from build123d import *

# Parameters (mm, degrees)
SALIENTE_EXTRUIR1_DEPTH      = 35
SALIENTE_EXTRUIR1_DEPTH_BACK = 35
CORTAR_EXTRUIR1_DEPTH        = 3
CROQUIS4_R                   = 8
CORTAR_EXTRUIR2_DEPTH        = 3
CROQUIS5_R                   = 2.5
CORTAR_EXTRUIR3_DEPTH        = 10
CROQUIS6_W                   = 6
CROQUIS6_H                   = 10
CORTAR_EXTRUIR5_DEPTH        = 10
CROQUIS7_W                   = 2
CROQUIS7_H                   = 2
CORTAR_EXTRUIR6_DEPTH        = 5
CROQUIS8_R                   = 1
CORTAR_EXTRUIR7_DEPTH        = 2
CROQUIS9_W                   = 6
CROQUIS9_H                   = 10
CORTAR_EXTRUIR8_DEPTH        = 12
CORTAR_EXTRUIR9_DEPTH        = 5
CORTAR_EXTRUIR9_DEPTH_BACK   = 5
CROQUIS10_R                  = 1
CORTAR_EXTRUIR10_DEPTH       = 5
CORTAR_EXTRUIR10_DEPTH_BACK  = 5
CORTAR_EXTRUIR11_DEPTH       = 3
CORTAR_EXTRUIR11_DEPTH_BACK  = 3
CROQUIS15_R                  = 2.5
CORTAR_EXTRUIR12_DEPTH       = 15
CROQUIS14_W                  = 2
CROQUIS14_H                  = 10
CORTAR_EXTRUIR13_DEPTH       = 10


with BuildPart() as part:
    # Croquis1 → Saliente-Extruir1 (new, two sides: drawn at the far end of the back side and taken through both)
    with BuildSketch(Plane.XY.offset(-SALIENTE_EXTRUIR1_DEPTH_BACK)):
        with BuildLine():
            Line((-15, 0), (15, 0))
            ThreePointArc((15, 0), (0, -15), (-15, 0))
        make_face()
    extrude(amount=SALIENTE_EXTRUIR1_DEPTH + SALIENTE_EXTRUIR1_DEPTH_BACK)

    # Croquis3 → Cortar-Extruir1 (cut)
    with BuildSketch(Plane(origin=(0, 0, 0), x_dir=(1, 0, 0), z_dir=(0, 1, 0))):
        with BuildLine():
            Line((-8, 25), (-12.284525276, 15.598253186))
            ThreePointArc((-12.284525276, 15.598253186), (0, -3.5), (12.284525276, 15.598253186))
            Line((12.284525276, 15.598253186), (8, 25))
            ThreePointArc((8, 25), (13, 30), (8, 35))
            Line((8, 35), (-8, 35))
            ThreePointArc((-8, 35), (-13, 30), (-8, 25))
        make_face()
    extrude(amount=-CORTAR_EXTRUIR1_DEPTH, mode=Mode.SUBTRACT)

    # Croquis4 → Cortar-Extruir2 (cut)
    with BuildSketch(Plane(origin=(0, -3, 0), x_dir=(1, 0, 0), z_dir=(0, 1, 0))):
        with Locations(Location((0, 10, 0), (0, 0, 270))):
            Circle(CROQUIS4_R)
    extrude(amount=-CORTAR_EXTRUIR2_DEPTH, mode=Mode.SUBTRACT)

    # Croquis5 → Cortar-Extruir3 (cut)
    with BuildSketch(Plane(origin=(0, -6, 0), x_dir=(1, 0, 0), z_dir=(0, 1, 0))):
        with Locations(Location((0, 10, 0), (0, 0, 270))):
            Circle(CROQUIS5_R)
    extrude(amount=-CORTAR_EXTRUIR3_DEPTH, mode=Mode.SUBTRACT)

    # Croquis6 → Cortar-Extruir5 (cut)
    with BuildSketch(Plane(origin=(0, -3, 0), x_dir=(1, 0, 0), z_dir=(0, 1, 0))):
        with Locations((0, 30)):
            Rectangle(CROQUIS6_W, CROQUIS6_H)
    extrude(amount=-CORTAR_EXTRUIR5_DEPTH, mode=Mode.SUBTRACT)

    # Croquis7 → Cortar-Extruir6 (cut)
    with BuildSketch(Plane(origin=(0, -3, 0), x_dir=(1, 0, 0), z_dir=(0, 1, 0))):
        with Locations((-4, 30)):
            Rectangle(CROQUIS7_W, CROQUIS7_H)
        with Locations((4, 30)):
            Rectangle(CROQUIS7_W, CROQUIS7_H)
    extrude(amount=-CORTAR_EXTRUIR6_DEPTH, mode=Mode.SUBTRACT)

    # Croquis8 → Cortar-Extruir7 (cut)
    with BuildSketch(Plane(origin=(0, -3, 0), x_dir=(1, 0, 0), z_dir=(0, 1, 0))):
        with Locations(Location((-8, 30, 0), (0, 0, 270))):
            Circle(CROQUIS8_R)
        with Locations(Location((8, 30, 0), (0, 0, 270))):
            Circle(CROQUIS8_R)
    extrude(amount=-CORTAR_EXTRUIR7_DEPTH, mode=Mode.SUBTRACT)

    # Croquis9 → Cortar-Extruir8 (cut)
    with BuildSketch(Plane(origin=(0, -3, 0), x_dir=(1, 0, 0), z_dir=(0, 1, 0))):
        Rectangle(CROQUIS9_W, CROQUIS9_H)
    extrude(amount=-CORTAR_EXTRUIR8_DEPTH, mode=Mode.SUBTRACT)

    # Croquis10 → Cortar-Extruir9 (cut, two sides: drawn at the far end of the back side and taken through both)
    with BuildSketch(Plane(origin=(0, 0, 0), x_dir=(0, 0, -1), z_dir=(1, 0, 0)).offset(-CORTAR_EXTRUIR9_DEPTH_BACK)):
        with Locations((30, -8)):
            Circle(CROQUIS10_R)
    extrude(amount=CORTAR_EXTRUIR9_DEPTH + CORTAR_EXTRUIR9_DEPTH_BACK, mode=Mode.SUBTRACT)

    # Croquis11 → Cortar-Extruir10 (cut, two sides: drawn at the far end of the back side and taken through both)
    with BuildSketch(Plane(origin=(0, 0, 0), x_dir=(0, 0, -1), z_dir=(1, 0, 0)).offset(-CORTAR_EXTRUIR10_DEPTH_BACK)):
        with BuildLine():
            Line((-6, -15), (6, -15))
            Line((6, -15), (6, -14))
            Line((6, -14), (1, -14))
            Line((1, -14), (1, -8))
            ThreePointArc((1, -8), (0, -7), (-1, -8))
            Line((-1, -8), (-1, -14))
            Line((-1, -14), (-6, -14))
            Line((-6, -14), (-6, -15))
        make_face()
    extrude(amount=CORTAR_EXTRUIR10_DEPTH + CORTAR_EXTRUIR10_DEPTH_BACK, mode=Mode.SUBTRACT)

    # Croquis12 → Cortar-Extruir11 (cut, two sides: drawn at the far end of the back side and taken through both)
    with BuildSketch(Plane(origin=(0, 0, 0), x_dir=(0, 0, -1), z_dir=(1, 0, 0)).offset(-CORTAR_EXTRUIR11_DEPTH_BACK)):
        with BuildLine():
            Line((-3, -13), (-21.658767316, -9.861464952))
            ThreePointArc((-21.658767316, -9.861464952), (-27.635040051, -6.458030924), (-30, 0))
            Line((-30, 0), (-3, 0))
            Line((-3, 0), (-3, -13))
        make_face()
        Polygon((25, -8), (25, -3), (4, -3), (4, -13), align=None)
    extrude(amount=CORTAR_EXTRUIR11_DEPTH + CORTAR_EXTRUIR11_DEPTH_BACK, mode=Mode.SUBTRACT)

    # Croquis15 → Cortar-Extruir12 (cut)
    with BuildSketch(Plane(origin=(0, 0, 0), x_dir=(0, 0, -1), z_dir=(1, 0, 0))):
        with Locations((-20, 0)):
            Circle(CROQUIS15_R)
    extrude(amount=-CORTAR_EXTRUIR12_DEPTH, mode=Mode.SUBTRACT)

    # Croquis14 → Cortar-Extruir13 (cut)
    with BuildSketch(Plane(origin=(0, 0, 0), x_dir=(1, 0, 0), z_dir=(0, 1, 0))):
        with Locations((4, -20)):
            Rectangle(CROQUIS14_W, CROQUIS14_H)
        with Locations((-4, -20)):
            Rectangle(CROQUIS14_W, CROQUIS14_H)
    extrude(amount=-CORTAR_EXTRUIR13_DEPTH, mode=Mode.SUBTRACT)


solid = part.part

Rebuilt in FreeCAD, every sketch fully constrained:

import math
import FreeCAD as App
import Part
import Sketcher

doc = App.newDocument("Part")
body = doc.addObject("PartDesign::Body", "Body")

sketch1 = body.newObject("Sketcher::SketchObject", "Sketch")
sketch1.AttachmentSupport = (doc.getObject("XY_Plane"), [""])
sketch1.MapMode = "FlatFace"
sketch1.addGeometry(Part.LineSegment(App.Vector(15, 0, 0), App.Vector(-15, 0, 0)), False)
sketch1.addGeometry(Part.ArcOfCircle(Part.Circle(App.Vector(0, 0, 0), App.Vector(0, 0, 1), 15), math.radians(180), math.radians(360)), False)
sketch1.addConstraint(Sketcher.Constraint("Coincident", 0, 1, 1, 2))
sketch1.addConstraint(Sketcher.Constraint("Coincident", 1, 1, 0, 2))
sketch1.addConstraint(Sketcher.Constraint("Horizontal", 0))
sketch1.addConstraint(Sketcher.Constraint("Coincident", 1, 3, -1, 1))
sketch1.addConstraint(Sketcher.Constraint("PointOnObject", 0, 1, -1))
sketch1.addConstraint(Sketcher.Constraint("Radius", 1, 15.0))
pad1 = body.newObject("PartDesign::Pad", "Pad")
pad1.Profile = sketch1
pad1.Type = "TwoLengths"
pad1.Length = 35
pad1.Length2 = 35

sketch2 = body.newObject("Sketcher::SketchObject", "Sketch001")
sketch2.AttachmentSupport = (doc.getObject("XZ_Plane"), [""])
sketch2.MapMode = "FlatFace"
sketch2.addGeometry(Part.LineSegment(App.Vector(-8, -25, 0), App.Vector(-12, -16, 0)), False)
sketch2.addGeometry(Part.ArcOfCircle(Part.Circle(App.Vector(0, -10, 0), App.Vector(0, 0, 1), 14), math.radians(-24), math.radians(204)), False)
sketch2.addGeometry(Part.LineSegment(App.Vector(12, -16, 0), App.Vector(8, -25, 0)), False)
sketch2.addGeometry(Part.ArcOfCircle(Part.Circle(App.Vector(8, -30, 0), App.Vector(0, 0, 1), 5), math.radians(-90), math.radians(90)), False)
sketch2.addGeometry(Part.LineSegment(App.Vector(8, -35, 0), App.Vector(-8, -35, 0)), False)
sketch2.addGeometry(Part.ArcOfCircle(Part.Circle(App.Vector(-8, -30, 0), App.Vector(0, 0, 1), 5), math.radians(90), math.radians(270)), False)
sketch2.addConstraint(Sketcher.Constraint("Tangent", 0, 2, 1, 2))
sketch2.addConstraint(Sketcher.Constraint("Tangent", 1, 1, 2, 1))
sketch2.addConstraint(Sketcher.Constraint("Coincident", 2, 2, 3, 2))
sketch2.addConstraint(Sketcher.Constraint("Tangent", 3, 1, 4, 1))
sketch2.addConstraint(Sketcher.Constraint("Tangent", 4, 2, 5, 2))
sketch2.addConstraint(Sketcher.Constraint("Coincident", 5, 1, 0, 1))
sketch2.addConstraint(Sketcher.Constraint("Horizontal", 4))
sketch2.addConstraint(Sketcher.Constraint("Equal", 3, 5))
sketch2.addConstraint(Sketcher.Constraint("Symmetric", 0, 2, 1, 1, -2))
sketch2.addConstraint(Sketcher.Constraint("Vertical", 3, 3, 2, 2))
sketch2.addConstraint(Sketcher.Constraint("Vertical", 4, 2, 5, 1))
sketch2.addConstraint(Sketcher.Constraint("Radius", 3, 5.0))
sketch2.addConstraint(Sketcher.Constraint("Radius", 1, 13.5))
sketch2.addConstraint(Sketcher.Constraint("DistanceX", 4, 2, 4, 1, 16.0))
sketch2.addConstraint(Sketcher.Constraint("DistanceY", 1, 3, -1, 1, 10.0))
sketch2.addConstraint(Sketcher.Constraint("DistanceY", 3, 3, -1, 1, 30.0))
pocket1 = body.newObject("PartDesign::Pocket", "Pocket")
pocket1.Profile = sketch2
pocket1.Length = 3
pocket1.Reversed = True

sketch3 = body.newObject("Sketcher::SketchObject", "Sketch002")
sketch3.AttachmentSupport = (doc.getObject("XZ_Plane"), [""])
sketch3.MapMode = "FlatFace"
sketch3.AttachmentOffset = App.Placement(App.Vector(0, 0, 3), App.Rotation())
sketch3.addGeometry(Part.Circle(App.Vector(0, -10, 0), App.Vector(0, 0, 1), 8), False)
sketch3.addConstraint(Sketcher.Constraint("PointOnObject", 0, 3, -2))
sketch3.addConstraint(Sketcher.Constraint("Diameter", 0, 16.0))
sketch3.addConstraint(Sketcher.Constraint("DistanceY", 0, 3, -1, 1, 10.0))
pocket2 = body.newObject("PartDesign::Pocket", "Pocket001")
pocket2.Profile = sketch3
pocket2.Length = 3
pocket2.Reversed = True

sketch4 = body.newObject("Sketcher::SketchObject", "Sketch003")
sketch4.AttachmentSupport = (doc.getObject("XZ_Plane"), [""])
sketch4.MapMode = "FlatFace"
sketch4.AttachmentOffset = App.Placement(App.Vector(0, 0, 6), App.Rotation())
sketch4.addGeometry(Part.Circle(App.Vector(0, -10, 0), App.Vector(0, 0, 1), 2.5), False)
sketch4.addConstraint(Sketcher.Constraint("PointOnObject", 0, 3, -2))
sketch4.addConstraint(Sketcher.Constraint("Diameter", 0, 5.0))
sketch4.addConstraint(Sketcher.Constraint("DistanceY", 0, 3, -1, 1, 10.0))
pocket3 = body.newObject("PartDesign::Pocket", "Pocket002")
pocket3.Profile = sketch4
pocket3.Length = 10
pocket3.Reversed = True

sketch5 = body.newObject("Sketcher::SketchObject", "Sketch004")
sketch5.AttachmentSupport = (doc.getObject("XZ_Plane"), [""])
sketch5.MapMode = "FlatFace"
sketch5.AttachmentOffset = App.Placement(App.Vector(0, 0, 3), App.Rotation())
sketch5.addGeometry(Part.LineSegment(App.Vector(-3, -35, 0), App.Vector(-3, -25, 0)), False)
sketch5.addGeometry(Part.LineSegment(App.Vector(-3, -25, 0), App.Vector(3, -25, 0)), False)
sketch5.addGeometry(Part.LineSegment(App.Vector(3, -25, 0), App.Vector(3, -35, 0)), False)
sketch5.addGeometry(Part.LineSegment(App.Vector(3, -35, 0), App.Vector(-3, -35, 0)), False)
sketch5.addConstraint(Sketcher.Constraint("Coincident", 0, 2, 1, 1))
sketch5.addConstraint(Sketcher.Constraint("Coincident", 1, 2, 2, 1))
sketch5.addConstraint(Sketcher.Constraint("Coincident", 2, 2, 3, 1))
sketch5.addConstraint(Sketcher.Constraint("Coincident", 3, 2, 0, 1))
sketch5.addConstraint(Sketcher.Constraint("Vertical", 0))
sketch5.addConstraint(Sketcher.Constraint("Horizontal", 1))
sketch5.addConstraint(Sketcher.Constraint("Vertical", 2))
sketch5.addConstraint(Sketcher.Constraint("Horizontal", 3))
sketch5.addConstraint(Sketcher.Constraint("DistanceX", 1, 1, 1, 2, 6.0))
sketch5.addConstraint(Sketcher.Constraint("DistanceY", 0, 1, 0, 2, 10.0))
sketch5.addConstraint(Sketcher.Constraint("DistanceX", 0, 2, -1, 1, 3.0))
sketch5.addConstraint(Sketcher.Constraint("DistanceY", 0, 2, -1, 1, 25.0))
pocket4 = body.newObject("PartDesign::Pocket", "Pocket003")
pocket4.Profile = sketch5
pocket4.Length = 10
pocket4.Reversed = True

sketch6 = body.newObject("Sketcher::SketchObject", "Sketch005")
sketch6.AttachmentSupport = (doc.getObject("XZ_Plane"), [""])
sketch6.MapMode = "FlatFace"
sketch6.AttachmentOffset = App.Placement(App.Vector(0, 0, 3), App.Rotation())
sketch6.addGeometry(Part.LineSegment(App.Vector(-5, -31, 0), App.Vector(-5, -29, 0)), False)
sketch6.addGeometry(Part.LineSegment(App.Vector(-5, -29, 0), App.Vector(-3, -29, 0)), False)
sketch6.addGeometry(Part.LineSegment(App.Vector(-3, -29, 0), App.Vector(-3, -31, 0)), False)
sketch6.addGeometry(Part.LineSegment(App.Vector(-3, -31, 0), App.Vector(-5, -31, 0)), False)
sketch6.addGeometry(Part.LineSegment(App.Vector(3, -31, 0), App.Vector(3, -29, 0)), False)
sketch6.addGeometry(Part.LineSegment(App.Vector(3, -29, 0), App.Vector(5, -29, 0)), False)
sketch6.addGeometry(Part.LineSegment(App.Vector(5, -29, 0), App.Vector(5, -31, 0)), False)
sketch6.addGeometry(Part.LineSegment(App.Vector(5, -31, 0), App.Vector(3, -31, 0)), False)
sketch6.addConstraint(Sketcher.Constraint("Coincident", 0, 2, 1, 1))
sketch6.addConstraint(Sketcher.Constraint("Coincident", 1, 2, 2, 1))
sketch6.addConstraint(Sketcher.Constraint("Coincident", 2, 2, 3, 1))
sketch6.addConstraint(Sketcher.Constraint("Coincident", 3, 2, 0, 1))
sketch6.addConstraint(Sketcher.Constraint("Coincident", 4, 2, 5, 1))
sketch6.addConstraint(Sketcher.Constraint("Coincident", 5, 2, 6, 1))
sketch6.addConstraint(Sketcher.Constraint("Coincident", 6, 2, 7, 1))
sketch6.addConstraint(Sketcher.Constraint("Coincident", 7, 2, 4, 1))
sketch6.addConstraint(Sketcher.Constraint("Vertical", 0))
sketch6.addConstraint(Sketcher.Constraint("Horizontal", 1))
sketch6.addConstraint(Sketcher.Constraint("Vertical", 2))
sketch6.addConstraint(Sketcher.Constraint("Horizontal", 3))
sketch6.addConstraint(Sketcher.Constraint("Vertical", 4))
sketch6.addConstraint(Sketcher.Constraint("Horizontal", 5))
sketch6.addConstraint(Sketcher.Constraint("Vertical", 6))
sketch6.addConstraint(Sketcher.Constraint("Horizontal", 7))
sketch6.addConstraint(Sketcher.Constraint("Symmetric", 1, 2, 4, 2, -2))
sketch6.addConstraint(Sketcher.Constraint("Symmetric", 3, 2, 6, 2, -2))
sketch6.addConstraint(Sketcher.Constraint("Equal", 7, 0))
sketch6.addConstraint(Sketcher.Constraint("DistanceX", 1, 1, 1, 2, 2.0))
sketch6.addConstraint(Sketcher.Constraint("DistanceX", 0, 2, -1, 1, 5.0))
sketch6.addConstraint(Sketcher.Constraint("DistanceY", 0, 2, -1, 1, 29.0))
pocket5 = body.newObject("PartDesign::Pocket", "Pocket004")
pocket5.Profile = sketch6
pocket5.Length = 5
pocket5.Reversed = True

sketch7 = body.newObject("Sketcher::SketchObject", "Sketch006")
sketch7.AttachmentSupport = (doc.getObject("XZ_Plane"), [""])
sketch7.MapMode = "FlatFace"
sketch7.AttachmentOffset = App.Placement(App.Vector(0, 0, 3), App.Rotation())
sketch7.addGeometry(Part.Circle(App.Vector(-8, -30, 0), App.Vector(0, 0, 1), 1), False)
sketch7.addGeometry(Part.Circle(App.Vector(8, -30, 0), App.Vector(0, 0, 1), 1), False)
sketch7.addConstraint(Sketcher.Constraint("Equal", 0, 1))
sketch7.addConstraint(Sketcher.Constraint("Symmetric", 0, 3, 1, 3, -2))
sketch7.addConstraint(Sketcher.Constraint("Diameter", 0, 2.0))
sketch7.addConstraint(Sketcher.Constraint("DistanceX", 0, 3, -1, 1, 8.0))
sketch7.addConstraint(Sketcher.Constraint("DistanceY", 0, 3, -1, 1, 30.0))
pocket6 = body.newObject("PartDesign::Pocket", "Pocket005")
pocket6.Profile = sketch7
pocket6.Length = 2
pocket6.Reversed = True

sketch8 = body.newObject("Sketcher::SketchObject", "Sketch007")
sketch8.AttachmentSupport = (doc.getObject("XZ_Plane"), [""])
sketch8.MapMode = "FlatFace"
sketch8.AttachmentOffset = App.Placement(App.Vector(0, 0, 3), App.Rotation())
sketch8.addGeometry(Part.LineSegment(App.Vector(-3, -5, 0), App.Vector(-3, 5, 0)), False)
sketch8.addGeometry(Part.LineSegment(App.Vector(-3, 5, 0), App.Vector(3, 5, 0)), False)
sketch8.addGeometry(Part.LineSegment(App.Vector(3, 5, 0), App.Vector(3, -5, 0)), False)
sketch8.addGeometry(Part.LineSegment(App.Vector(3, -5, 0), App.Vector(-3, -5, 0)), False)
sketch8.addConstraint(Sketcher.Constraint("Coincident", 0, 2, 1, 1))
sketch8.addConstraint(Sketcher.Constraint("Coincident", 1, 2, 2, 1))
sketch8.addConstraint(Sketcher.Constraint("Coincident", 2, 2, 3, 1))
sketch8.addConstraint(Sketcher.Constraint("Coincident", 3, 2, 0, 1))
sketch8.addConstraint(Sketcher.Constraint("Vertical", 0))
sketch8.addConstraint(Sketcher.Constraint("Horizontal", 1))
sketch8.addConstraint(Sketcher.Constraint("Vertical", 2))
sketch8.addConstraint(Sketcher.Constraint("Horizontal", 3))
sketch8.addConstraint(Sketcher.Constraint("Symmetric", 0, 2, 2, 2, -1, 1))
sketch8.addConstraint(Sketcher.Constraint("DistanceX", 1, 1, 1, 2, 6.0))
sketch8.addConstraint(Sketcher.Constraint("DistanceY", 0, 1, 0, 2, 10.0))
pocket7 = body.newObject("PartDesign::Pocket", "Pocket006")
pocket7.Profile = sketch8
pocket7.Length = 12
pocket7.Reversed = True

sketch9 = body.newObject("Sketcher::SketchObject", "Sketch008")
sketch9.AttachmentSupport = (doc.getObject("YZ_Plane"), [""])
sketch9.MapMode = "FlatFace"
sketch9.addGeometry(Part.Circle(App.Vector(-8, -30, 0), App.Vector(0, 0, 1), 1), False)
sketch9.addConstraint(Sketcher.Constraint("Diameter", 0, 2.0))
sketch9.addConstraint(Sketcher.Constraint("DistanceX", 0, 3, -1, 1, 8.0))
sketch9.addConstraint(Sketcher.Constraint("DistanceY", 0, 3, -1, 1, 30.0))
pocket8 = body.newObject("PartDesign::Pocket", "Pocket007")
pocket8.Profile = sketch9
pocket8.Type = "TwoLengths"
pocket8.Length = 5
pocket8.Length2 = 5
pocket8.Reversed = True

sketch10 = body.newObject("Sketcher::SketchObject", "Sketch009")
sketch10.AttachmentSupport = (doc.getObject("YZ_Plane"), [""])
sketch10.MapMode = "FlatFace"
sketch10.addGeometry(Part.LineSegment(App.Vector(-15, 6, 0), App.Vector(-15, -6, 0)), False)
sketch10.addGeometry(Part.LineSegment(App.Vector(-15, -6, 0), App.Vector(-14, -6, 0)), False)
sketch10.addGeometry(Part.LineSegment(App.Vector(-14, -6, 0), App.Vector(-14, -1, 0)), False)
sketch10.addGeometry(Part.LineSegment(App.Vector(-14, -1, 0), App.Vector(-8, -1, 0)), False)
sketch10.addGeometry(Part.ArcOfCircle(Part.Circle(App.Vector(-8, 0, 0), App.Vector(0, 0, 1), 1), math.radians(-90), math.radians(90)), False)
sketch10.addGeometry(Part.LineSegment(App.Vector(-8, 1, 0), App.Vector(-14, 1, 0)), False)
sketch10.addGeometry(Part.LineSegment(App.Vector(-14, 1, 0), App.Vector(-14, 6, 0)), False)
sketch10.addGeometry(Part.LineSegment(App.Vector(-14, 6, 0), App.Vector(-15, 6, 0)), False)
sketch10.addConstraint(Sketcher.Constraint("Coincident", 0, 2, 1, 1))
sketch10.addConstraint(Sketcher.Constraint("Coincident", 1, 2, 2, 1))
sketch10.addConstraint(Sketcher.Constraint("Coincident", 2, 2, 3, 1))
sketch10.addConstraint(Sketcher.Constraint("Tangent", 3, 2, 4, 1))
sketch10.addConstraint(Sketcher.Constraint("Tangent", 4, 2, 5, 1))
sketch10.addConstraint(Sketcher.Constraint("Coincident", 5, 2, 6, 1))
sketch10.addConstraint(Sketcher.Constraint("Coincident", 6, 2, 7, 1))
sketch10.addConstraint(Sketcher.Constraint("Coincident", 7, 2, 0, 1))
sketch10.addConstraint(Sketcher.Constraint("Vertical", 0))
sketch10.addConstraint(Sketcher.Constraint("Horizontal", 1))
sketch10.addConstraint(Sketcher.Constraint("Vertical", 2))
sketch10.addConstraint(Sketcher.Constraint("Horizontal", 3))
sketch10.addConstraint(Sketcher.Constraint("Horizontal", 5))
sketch10.addConstraint(Sketcher.Constraint("Vertical", 6))
sketch10.addConstraint(Sketcher.Constraint("Horizontal", 7))
sketch10.addConstraint(Sketcher.Constraint("Symmetric", 2, 2, 5, 2, -1))
sketch10.addConstraint(Sketcher.Constraint("Equal", 2, 6))
sketch10.addConstraint(Sketcher.Constraint("Radius", 4, 1.0))
sketch10.addConstraint(Sketcher.Constraint("DistanceX", 1, 1, 1, 2, 1.0))
sketch10.addConstraint(Sketcher.Constraint("DistanceX", 3, 1, 3, 2, 6.0))
sketch10.addConstraint(Sketcher.Constraint("DistanceY", 0, 2, 0, 1, 12.0))
sketch10.addConstraint(Sketcher.Constraint("DistanceX", 4, 3, -1, 1, 8.0))
pocket9 = body.newObject("PartDesign::Pocket", "Pocket008")
pocket9.Profile = sketch10
pocket9.Type = "TwoLengths"
pocket9.Length = 5
pocket9.Length2 = 5
pocket9.Reversed = True

sketch11 = body.newObject("Sketcher::SketchObject", "Sketch010")
sketch11.AttachmentSupport = (doc.getObject("YZ_Plane"), [""])
sketch11.MapMode = "FlatFace"
sketch11.addGeometry(Part.LineSegment(App.Vector(-10, 22, 0), App.Vector(-13, 3, 0)), False)
sketch11.addGeometry(Part.LineSegment(App.Vector(-13, 3, 0), App.Vector(0, 3, 0)), False)
sketch11.addGeometry(Part.LineSegment(App.Vector(0, 3, 0), App.Vector(0, 30, 0)), False)
sketch11.addGeometry(Part.ArcOfCircle(Part.Circle(App.Vector(0, 20, 0), App.Vector(0, 0, 1), 10), math.radians(90), math.radians(170)), False)
sketch11.addGeometry(Part.LineSegment(App.Vector(-8, -25, 0), App.Vector(-3, -25, 0)), False)
sketch11.addGeometry(Part.LineSegment(App.Vector(-3, -25, 0), App.Vector(-3, -4, 0)), False)
sketch11.addGeometry(Part.LineSegment(App.Vector(-3, -4, 0), App.Vector(-13, -4, 0)), False)
sketch11.addGeometry(Part.LineSegment(App.Vector(-13, -4, 0), App.Vector(-8, -25, 0)), False)
sketch11.addConstraint(Sketcher.Constraint("Coincident", 0, 2, 1, 1))
sketch11.addConstraint(Sketcher.Constraint("Coincident", 1, 2, 2, 1))
sketch11.addConstraint(Sketcher.Constraint("Coincident", 2, 2, 3, 1))
sketch11.addConstraint(Sketcher.Constraint("Tangent", 3, 2, 0, 1))
sketch11.addConstraint(Sketcher.Constraint("Coincident", 4, 2, 5, 1))
sketch11.addConstraint(Sketcher.Constraint("Coincident", 5, 2, 6, 1))
sketch11.addConstraint(Sketcher.Constraint("Coincident", 6, 2, 7, 1))
sketch11.addConstraint(Sketcher.Constraint("Coincident", 7, 2, 4, 1))
sketch11.addConstraint(Sketcher.Constraint("Horizontal", 1))
sketch11.addConstraint(Sketcher.Constraint("Vertical", 2))
sketch11.addConstraint(Sketcher.Constraint("Horizontal", 4))
sketch11.addConstraint(Sketcher.Constraint("Vertical", 5))
sketch11.addConstraint(Sketcher.Constraint("Horizontal", 6))
sketch11.addConstraint(Sketcher.Constraint("PointOnObject", 3, 3, -2))
sketch11.addConstraint(Sketcher.Constraint("PointOnObject", 1, 2, -2))
sketch11.addConstraint(Sketcher.Constraint("Vertical", 0, 2, 6, 2))
sketch11.addConstraint(Sketcher.Constraint("Radius", 3, 10.0))
sketch11.addConstraint(Sketcher.Constraint("DistanceX", 1, 1, 1, 2, 13.0))
sketch11.addConstraint(Sketcher.Constraint("DistanceX", 4, 1, 4, 2, 5.0))
sketch11.addConstraint(Sketcher.Constraint("DistanceX", 6, 2, 6, 1, 10.0))
sketch11.addConstraint(Sketcher.Constraint("DistanceY", 2, 1, 2, 2, 27.0))
sketch11.addConstraint(Sketcher.Constraint("DistanceY", 5, 1, 5, 2, 21.0))
sketch11.addConstraint(Sketcher.Constraint("DistanceY", -1, 1, 3, 3, 20.0))
sketch11.addConstraint(Sketcher.Constraint("DistanceY", 4, 2, -1, 1, 25.0))
pocket10 = body.newObject("PartDesign::Pocket", "Pocket009")
pocket10.Profile = sketch11
pocket10.Type = "TwoLengths"
pocket10.Length = 3
pocket10.Length2 = 3
pocket10.Reversed = True

sketch12 = body.newObject("Sketcher::SketchObject", "Sketch011")
sketch12.AttachmentSupport = (doc.getObject("YZ_Plane"), [""])
sketch12.MapMode = "FlatFace"
sketch12.addGeometry(Part.Circle(App.Vector(0, 20, 0), App.Vector(0, 0, 1), 2.5), False)
sketch12.addConstraint(Sketcher.Constraint("PointOnObject", 0, 3, -2))
sketch12.addConstraint(Sketcher.Constraint("Diameter", 0, 5.0))
sketch12.addConstraint(Sketcher.Constraint("DistanceY", -1, 1, 0, 3, 20.0))
pocket11 = body.newObject("PartDesign::Pocket", "Pocket010")
pocket11.Profile = sketch12
pocket11.Length = 15

sketch13 = body.newObject("Sketcher::SketchObject", "Sketch012")
sketch13.AttachmentSupport = (doc.getObject("XZ_Plane"), [""])
sketch13.MapMode = "FlatFace"
sketch13.addGeometry(Part.LineSegment(App.Vector(3, 15, 0), App.Vector(3, 25, 0)), False)
sketch13.addGeometry(Part.LineSegment(App.Vector(3, 25, 0), App.Vector(5, 25, 0)), False)
sketch13.addGeometry(Part.LineSegment(App.Vector(5, 25, 0), App.Vector(5, 15, 0)), False)
sketch13.addGeometry(Part.LineSegment(App.Vector(5, 15, 0), App.Vector(3, 15, 0)), False)
sketch13.addGeometry(Part.LineSegment(App.Vector(-5, 15, 0), App.Vector(-5, 25, 0)), False)
sketch13.addGeometry(Part.LineSegment(App.Vector(-5, 25, 0), App.Vector(-3, 25, 0)), False)
sketch13.addGeometry(Part.LineSegment(App.Vector(-3, 25, 0), App.Vector(-3, 15, 0)), False)
sketch13.addGeometry(Part.LineSegment(App.Vector(-3, 15, 0), App.Vector(-5, 15, 0)), False)
sketch13.addConstraint(Sketcher.Constraint("Coincident", 0, 2, 1, 1))
sketch13.addConstraint(Sketcher.Constraint("Coincident", 1, 2, 2, 1))
sketch13.addConstraint(Sketcher.Constraint("Coincident", 2, 2, 3, 1))
sketch13.addConstraint(Sketcher.Constraint("Coincident", 3, 2, 0, 1))
sketch13.addConstraint(Sketcher.Constraint("Coincident", 4, 2, 5, 1))
sketch13.addConstraint(Sketcher.Constraint("Coincident", 5, 2, 6, 1))
sketch13.addConstraint(Sketcher.Constraint("Coincident", 6, 2, 7, 1))
sketch13.addConstraint(Sketcher.Constraint("Coincident", 7, 2, 4, 1))
sketch13.addConstraint(Sketcher.Constraint("Vertical", 0))
sketch13.addConstraint(Sketcher.Constraint("Horizontal", 1))
sketch13.addConstraint(Sketcher.Constraint("Vertical", 2))
sketch13.addConstraint(Sketcher.Constraint("Horizontal", 3))
sketch13.addConstraint(Sketcher.Constraint("Vertical", 4))
sketch13.addConstraint(Sketcher.Constraint("Horizontal", 5))
sketch13.addConstraint(Sketcher.Constraint("Vertical", 6))
sketch13.addConstraint(Sketcher.Constraint("Horizontal", 7))
sketch13.addConstraint(Sketcher.Constraint("Symmetric", 1, 2, 4, 2, -2))
sketch13.addConstraint(Sketcher.Constraint("Symmetric", 3, 2, 6, 2, -2))
sketch13.addConstraint(Sketcher.Constraint("DistanceX", 1, 1, 1, 2, 2.0))
sketch13.addConstraint(Sketcher.Constraint("DistanceY", 0, 1, 0, 2, 10.0))
sketch13.addConstraint(Sketcher.Constraint("DistanceX", -1, 1, 0, 2, 3.0))
sketch13.addConstraint(Sketcher.Constraint("DistanceY", -1, 1, 0, 2, 25.0))
pocket12 = body.newObject("PartDesign::Pocket", "Pocket011")
pocket12.Profile = sketch13
pocket12.Length = 10
pocket12.Reversed = True

doc.recompute()
